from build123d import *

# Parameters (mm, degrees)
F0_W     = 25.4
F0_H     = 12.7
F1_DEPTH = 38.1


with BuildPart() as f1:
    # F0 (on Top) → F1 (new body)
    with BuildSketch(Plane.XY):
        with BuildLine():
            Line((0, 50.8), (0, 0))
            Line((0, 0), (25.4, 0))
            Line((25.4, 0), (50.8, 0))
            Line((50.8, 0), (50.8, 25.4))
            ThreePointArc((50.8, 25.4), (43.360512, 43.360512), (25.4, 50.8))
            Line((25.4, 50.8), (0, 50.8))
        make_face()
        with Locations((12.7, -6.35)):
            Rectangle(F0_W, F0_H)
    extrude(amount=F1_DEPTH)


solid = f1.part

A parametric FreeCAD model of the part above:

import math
import FreeCAD as App
import Part
import Sketcher
from FreeCAD import Vector
Q = App.Units.Quantity

doc = App.newDocument("Part")
body = doc.addObject("PartDesign::Body", "Body")

# Sketch on XY plane
sketch1 = body.newObject("Sketcher::SketchObject", "Sketch")
sketch1.AttachmentSupport = (doc.getObject("XY_Plane"), [""])
sketch1.MapMode = "FlatFace"
sketch1.addGeometry(Part.LineSegment(Vector(0, 51, 0), Vector(0, -13, 0)), False)
sketch1.addGeometry(Part.LineSegment(Vector(0, -13, 0), Vector(25, -13, 0)), False)
sketch1.addGeometry(Part.LineSegment(Vector(25, -13, 0), Vector(25, 0, 0)), False)
sketch1.addGeometry(Part.LineSegment(Vector(25, 0, 0), Vector(51, 0, 0)), False)
sketch1.addGeometry(Part.LineSegment(Vector(51, 0, 0), Vector(51, 25, 0)), False)
sketch1.addGeometry(Part.ArcOfCircle(Part.Circle(Vector(25, 25, 0), Vector(0, 0, 1), 25), math.radians(0), math.radians(90)), False)
sketch1.addGeometry(Part.LineSegment(Vector(25, 51, 0), Vector(0, 51, 0)), False)
sketch1.addConstraint(Sketcher.Constraint("Coincident", 0, 2, 1, 1))
sketch1.addConstraint(Sketcher.Constraint("Coincident", 1, 2, 2, 1))
sketch1.addConstraint(Sketcher.Constraint("Coincident", 2, 2, 3, 1))
sketch1.addConstraint(Sketcher.Constraint("Coincident", 3, 2, 4, 1))
sketch1.addConstraint(Sketcher.Constraint("Tangent", 4, 2, 5, 1))
sketch1.addConstraint(Sketcher.Constraint("Tangent", 5, 2, 6, 1))
sketch1.addConstraint(Sketcher.Constraint("Coincident", 6, 2, 0, 1))
sketch1.addConstraint(Sketcher.Constraint("Vertical", 0))
sketch1.addConstraint(Sketcher.Constraint("Horizontal", 1))
sketch1.addConstraint(Sketcher.Constraint("Vertical", 2))
sketch1.addConstraint(Sketcher.Constraint("Horizontal", 3))
sketch1.addConstraint(Sketcher.Constraint("Vertical", 4))
sketch1.addConstraint(Sketcher.Constraint("Horizontal", 6))
sketch1.addConstraint(Sketcher.Constraint("PointOnObject", 0, 2, -2))
sketch1.addConstraint(Sketcher.Constraint("PointOnObject", 2, 2, -1))
sketch1.addConstraint(Sketcher.Constraint("Vertical", 5, 3, 1, 2))
sketch1.addConstraint(Sketcher.Constraint("Equal", 1, 3))
sketch1.addConstraint(Sketcher.Constraint("Equal", 6, 4))
sketch1.addConstraint(Sketcher.Constraint("Radius", 5, Q("1 in")))
sketch1.addConstraint(Sketcher.Constraint("DistanceY", 0, 2, 0, 1, Q("2.5 in")))
pad1 = body.newObject("PartDesign::Pad", "Pad")
pad1.Profile = sketch1
pad1.Length = Q("1.5 in")

doc.recompute()
